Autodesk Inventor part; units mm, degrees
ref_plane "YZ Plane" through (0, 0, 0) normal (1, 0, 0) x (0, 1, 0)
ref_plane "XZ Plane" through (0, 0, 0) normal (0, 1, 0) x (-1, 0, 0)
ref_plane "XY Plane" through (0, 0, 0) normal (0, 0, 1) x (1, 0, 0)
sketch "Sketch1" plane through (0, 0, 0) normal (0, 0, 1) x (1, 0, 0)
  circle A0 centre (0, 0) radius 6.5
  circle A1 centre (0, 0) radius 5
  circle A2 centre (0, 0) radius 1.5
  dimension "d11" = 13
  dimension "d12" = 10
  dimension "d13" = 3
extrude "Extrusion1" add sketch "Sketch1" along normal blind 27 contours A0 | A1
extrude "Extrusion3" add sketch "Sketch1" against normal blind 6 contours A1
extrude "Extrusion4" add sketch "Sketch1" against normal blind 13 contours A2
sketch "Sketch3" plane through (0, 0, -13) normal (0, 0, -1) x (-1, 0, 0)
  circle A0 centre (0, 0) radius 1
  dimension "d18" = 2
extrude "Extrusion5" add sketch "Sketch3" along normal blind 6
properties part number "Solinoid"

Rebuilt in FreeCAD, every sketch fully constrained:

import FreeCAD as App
import Part
import Sketcher
Q = App.Units.Quantity

doc = App.newDocument("Part")
body = doc.addObject("PartDesign::Body", "Body")

# Sketch on XY plane
sketch1 = doc.addObject("Sketcher::SketchObject", "Sketch")
body.addObject(sketch1)
sketch1.AttachmentSupport = (doc.XY_Plane, [""])
sketch1.MapMode = "FlatFace"
sketch1.addGeometry([
    Part.Circle(App.Vector(0, 0, 0), App.Vector(0, 0, 1), 6.5),
    Part.Circle(App.Vector(0, 0, 0), App.Vector(0, 0, 1), 1.5),
], False)
sketch1.addConstraint([
    Sketcher.Constraint("Coincident", 0, 3, -1, 1),
    Sketcher.Constraint("Coincident", 1, 3, -1, 1),
    Sketcher.Constraint("Diameter", 0, Q("13 mm")),
    Sketcher.Constraint("Diameter", 1, Q("3 mm")),
])
pad1 = doc.addObject("PartDesign::Pad", "Pad")
body.addObject(pad1)
pad1.Profile = sketch1
pad1.Length = 27

# Sketch on XY plane
sketch2 = doc.addObject("Sketcher::SketchObject", "Sketch001")
body.addObject(sketch2)
sketch2.AttachmentSupport = (doc.XY_Plane, [""])
sketch2.MapMode = "FlatFace"
sketch2.addGeometry([
    Part.Circle(App.Vector(0, 0, 0), App.Vector(0, 0, 1), 5),
    Part.Circle(App.Vector(0, 0, 0), App.Vector(0, 0, 1), 1.5),
], False)
sketch2.addConstraint([
    Sketcher.Constraint("Coincident", 0, 3, -1, 1),
    Sketcher.Constraint("Coincident", 1, 3, -1, 1),
    Sketcher.Constraint("Diameter", 0, Q("10 mm")),
    Sketcher.Constraint("Diameter", 1, Q("3 mm")),
])
pad2 = doc.addObject("PartDesign::Pad", "Pad001")
body.addObject(pad2)
pad2.Profile = sketch2
pad2.Length = 6
pad2.Reversed = True

# Sketch on XY plane
sketch3 = doc.addObject("Sketcher::SketchObject", "Sketch002")
body.addObject(sketch3)
sketch3.AttachmentSupport = (doc.XY_Plane, [""])
sketch3.MapMode = "FlatFace"
sketch3.addGeometry(Part.Circle(App.Vector(0, 0, 0), App.Vector(0, 0, 1), 1.5), False)
sketch3.addConstraint([
    Sketcher.Constraint("Coincident", 0, 3, -1, 1),
    Sketcher.Constraint("Diameter", 0, Q("3 mm")),
])
pad3 = doc.addObject("PartDesign::Pad", "Pad002")
body.addObject(pad3)
pad3.Profile = sketch3
pad3.Length = 13
pad3.Reversed = True

# Sketch on XY plane
sketch4 = doc.addObject("Sketcher::SketchObject", "Sketch003")
body.addObject(sketch4)
sketch4.AttachmentSupport = (doc.XY_Plane, [""])
sketch4.MapMode = "FlatFace"
sketch4.AttachmentOffset = App.Placement(App.Vector(0, 0, -13), App.Rotation())
sketch4.addGeometry(Part.Circle(App.Vector(0, 0, 0), App.Vector(0, 0, 1), 1), False)
sketch4.addConstraint([
    Sketcher.Constraint("Coincident", 0, 3, -1, 1),
    Sketcher.Constraint("Diameter", 0, Q("2 mm")),
])
pad4 = doc.addObject("PartDesign::Pad", "Pad003")
body.addObject(pad4)
pad4.Profile = sketch4
pad4.Length = 6
pad4.Reversed = True

doc.recompute()
